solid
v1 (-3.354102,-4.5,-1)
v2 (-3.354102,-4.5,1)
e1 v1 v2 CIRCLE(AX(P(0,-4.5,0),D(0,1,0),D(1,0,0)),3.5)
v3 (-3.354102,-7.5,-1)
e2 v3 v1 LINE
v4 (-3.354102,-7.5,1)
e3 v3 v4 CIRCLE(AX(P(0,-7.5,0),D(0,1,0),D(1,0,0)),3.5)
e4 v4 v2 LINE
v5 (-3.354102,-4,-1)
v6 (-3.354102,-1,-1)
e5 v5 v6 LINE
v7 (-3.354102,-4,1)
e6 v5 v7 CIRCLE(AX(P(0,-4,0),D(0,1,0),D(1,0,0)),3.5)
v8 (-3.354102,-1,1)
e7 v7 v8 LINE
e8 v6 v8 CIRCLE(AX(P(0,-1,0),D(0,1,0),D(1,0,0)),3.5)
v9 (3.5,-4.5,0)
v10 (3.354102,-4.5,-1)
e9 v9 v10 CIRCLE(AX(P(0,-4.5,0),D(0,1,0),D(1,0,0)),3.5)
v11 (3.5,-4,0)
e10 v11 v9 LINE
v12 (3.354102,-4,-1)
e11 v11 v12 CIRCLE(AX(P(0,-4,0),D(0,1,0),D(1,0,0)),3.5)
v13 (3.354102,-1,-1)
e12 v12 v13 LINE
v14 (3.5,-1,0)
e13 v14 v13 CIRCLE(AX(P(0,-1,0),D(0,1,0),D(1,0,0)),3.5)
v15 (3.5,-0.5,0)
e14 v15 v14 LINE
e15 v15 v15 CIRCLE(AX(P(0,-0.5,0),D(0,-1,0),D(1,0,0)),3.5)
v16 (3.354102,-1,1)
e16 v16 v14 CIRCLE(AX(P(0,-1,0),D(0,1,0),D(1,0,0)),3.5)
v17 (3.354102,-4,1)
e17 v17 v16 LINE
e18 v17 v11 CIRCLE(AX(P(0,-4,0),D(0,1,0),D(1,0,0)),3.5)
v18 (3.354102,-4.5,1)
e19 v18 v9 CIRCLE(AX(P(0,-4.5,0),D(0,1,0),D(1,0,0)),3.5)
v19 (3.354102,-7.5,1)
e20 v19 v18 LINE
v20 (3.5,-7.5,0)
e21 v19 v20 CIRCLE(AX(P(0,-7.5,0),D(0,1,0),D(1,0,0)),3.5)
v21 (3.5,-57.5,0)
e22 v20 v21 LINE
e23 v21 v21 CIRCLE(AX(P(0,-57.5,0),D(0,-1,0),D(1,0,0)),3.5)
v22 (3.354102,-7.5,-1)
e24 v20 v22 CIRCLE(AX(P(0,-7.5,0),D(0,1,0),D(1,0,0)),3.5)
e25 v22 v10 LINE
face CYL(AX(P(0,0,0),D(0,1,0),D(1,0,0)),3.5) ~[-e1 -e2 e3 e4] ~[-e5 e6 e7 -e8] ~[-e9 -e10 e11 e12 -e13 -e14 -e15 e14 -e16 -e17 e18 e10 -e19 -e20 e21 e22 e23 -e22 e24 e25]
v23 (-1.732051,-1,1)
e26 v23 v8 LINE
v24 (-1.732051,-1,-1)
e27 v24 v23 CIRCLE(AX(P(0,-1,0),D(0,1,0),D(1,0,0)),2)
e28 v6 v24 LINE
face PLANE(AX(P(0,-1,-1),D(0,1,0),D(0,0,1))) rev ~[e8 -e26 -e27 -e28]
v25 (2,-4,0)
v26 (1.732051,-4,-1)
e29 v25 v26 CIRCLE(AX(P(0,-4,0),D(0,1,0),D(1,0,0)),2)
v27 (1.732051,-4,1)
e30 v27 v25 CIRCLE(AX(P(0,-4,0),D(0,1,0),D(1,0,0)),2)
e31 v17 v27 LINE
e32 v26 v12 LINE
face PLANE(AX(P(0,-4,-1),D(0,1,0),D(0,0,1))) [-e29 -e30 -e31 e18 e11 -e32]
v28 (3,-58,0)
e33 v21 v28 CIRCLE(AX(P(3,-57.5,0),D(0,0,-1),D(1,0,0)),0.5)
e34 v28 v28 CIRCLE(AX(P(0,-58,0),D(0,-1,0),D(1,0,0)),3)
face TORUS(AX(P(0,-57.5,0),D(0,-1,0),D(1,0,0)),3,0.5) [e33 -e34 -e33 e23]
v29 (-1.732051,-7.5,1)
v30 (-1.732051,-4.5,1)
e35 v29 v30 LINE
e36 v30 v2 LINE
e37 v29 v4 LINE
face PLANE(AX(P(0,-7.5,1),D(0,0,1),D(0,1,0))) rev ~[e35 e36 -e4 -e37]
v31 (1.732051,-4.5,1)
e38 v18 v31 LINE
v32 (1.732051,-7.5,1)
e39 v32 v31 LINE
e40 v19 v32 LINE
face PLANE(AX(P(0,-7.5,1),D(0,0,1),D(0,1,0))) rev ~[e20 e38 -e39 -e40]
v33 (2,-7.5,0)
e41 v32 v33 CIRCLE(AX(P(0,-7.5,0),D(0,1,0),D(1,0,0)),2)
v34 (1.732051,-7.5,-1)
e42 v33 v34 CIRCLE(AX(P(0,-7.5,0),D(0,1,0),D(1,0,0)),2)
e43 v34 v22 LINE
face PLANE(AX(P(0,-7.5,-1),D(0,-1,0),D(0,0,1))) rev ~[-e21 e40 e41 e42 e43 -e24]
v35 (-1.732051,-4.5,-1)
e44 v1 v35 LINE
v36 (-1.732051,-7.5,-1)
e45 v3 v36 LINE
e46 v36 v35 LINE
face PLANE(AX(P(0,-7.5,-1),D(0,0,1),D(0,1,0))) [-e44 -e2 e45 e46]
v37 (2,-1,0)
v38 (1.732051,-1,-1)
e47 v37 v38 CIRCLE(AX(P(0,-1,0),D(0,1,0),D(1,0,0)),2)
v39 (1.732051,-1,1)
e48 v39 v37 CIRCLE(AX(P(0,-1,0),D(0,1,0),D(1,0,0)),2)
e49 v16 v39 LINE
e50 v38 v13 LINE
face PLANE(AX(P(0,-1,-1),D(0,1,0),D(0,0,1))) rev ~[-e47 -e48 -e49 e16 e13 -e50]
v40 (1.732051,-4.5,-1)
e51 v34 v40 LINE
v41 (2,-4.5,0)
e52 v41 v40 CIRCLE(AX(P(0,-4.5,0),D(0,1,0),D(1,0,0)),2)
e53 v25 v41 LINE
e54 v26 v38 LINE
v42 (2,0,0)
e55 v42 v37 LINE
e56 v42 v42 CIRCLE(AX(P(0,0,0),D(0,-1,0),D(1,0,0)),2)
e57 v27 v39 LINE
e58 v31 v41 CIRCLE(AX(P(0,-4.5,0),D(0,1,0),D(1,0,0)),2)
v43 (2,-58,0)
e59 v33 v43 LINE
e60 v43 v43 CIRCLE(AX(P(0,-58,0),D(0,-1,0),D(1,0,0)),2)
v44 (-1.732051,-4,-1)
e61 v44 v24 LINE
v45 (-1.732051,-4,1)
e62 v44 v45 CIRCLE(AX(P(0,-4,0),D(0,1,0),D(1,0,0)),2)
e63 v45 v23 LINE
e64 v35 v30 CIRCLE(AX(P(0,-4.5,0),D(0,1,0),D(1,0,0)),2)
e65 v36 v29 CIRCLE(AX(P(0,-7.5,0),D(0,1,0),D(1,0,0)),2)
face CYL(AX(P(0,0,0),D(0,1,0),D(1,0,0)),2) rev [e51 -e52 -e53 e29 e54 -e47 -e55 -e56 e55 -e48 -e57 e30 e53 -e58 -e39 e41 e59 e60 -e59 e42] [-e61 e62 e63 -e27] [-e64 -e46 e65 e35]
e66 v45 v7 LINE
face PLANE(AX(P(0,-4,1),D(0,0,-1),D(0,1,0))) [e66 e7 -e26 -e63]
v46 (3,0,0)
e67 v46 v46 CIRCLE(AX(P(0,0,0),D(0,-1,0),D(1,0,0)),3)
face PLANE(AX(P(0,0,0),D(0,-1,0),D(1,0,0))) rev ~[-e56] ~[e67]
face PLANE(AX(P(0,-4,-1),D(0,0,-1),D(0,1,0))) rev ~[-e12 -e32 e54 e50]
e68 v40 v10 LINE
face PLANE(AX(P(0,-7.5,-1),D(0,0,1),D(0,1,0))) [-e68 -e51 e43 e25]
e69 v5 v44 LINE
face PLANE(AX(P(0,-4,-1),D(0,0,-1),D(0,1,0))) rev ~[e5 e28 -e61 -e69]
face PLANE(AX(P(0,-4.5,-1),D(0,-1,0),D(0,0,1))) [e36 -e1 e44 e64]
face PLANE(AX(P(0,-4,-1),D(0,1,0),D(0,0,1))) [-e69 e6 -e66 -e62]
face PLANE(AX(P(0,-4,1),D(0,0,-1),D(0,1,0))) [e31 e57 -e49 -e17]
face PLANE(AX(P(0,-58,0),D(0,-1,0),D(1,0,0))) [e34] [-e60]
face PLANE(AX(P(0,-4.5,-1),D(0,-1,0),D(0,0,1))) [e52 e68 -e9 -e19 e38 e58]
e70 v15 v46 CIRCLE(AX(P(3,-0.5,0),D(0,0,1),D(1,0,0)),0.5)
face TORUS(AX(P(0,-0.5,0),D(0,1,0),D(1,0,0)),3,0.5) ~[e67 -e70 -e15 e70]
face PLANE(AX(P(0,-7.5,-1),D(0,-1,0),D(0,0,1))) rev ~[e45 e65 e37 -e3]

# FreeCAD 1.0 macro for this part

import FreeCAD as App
import Part
import Sketcher
Q = App.Units.Quantity


def edges_at(feature, points):
    """Names of the edges that pass closest to the given points."""
    edges = feature.Shape.Edges
    near = lambda p: min(range(len(edges)), key=lambda i: edges[i].distToShape(Part.Vertex(*p))[0])
    return sorted({f"Edge{near(p) + 1}" for p in points})


def add_polygon(sketch, points):
    """Adds a closed chain of lines whose ends are joined by coincident constraints."""
    first, n = sketch.GeometryCount, len(points)
    for a, b in zip(points, points[1:] + points[:1]):
        sketch.addGeometry(Part.LineSegment(App.Vector(*a, 0), App.Vector(*b, 0)), False)
    for i in range(n):
        sketch.addConstraint(Sketcher.Constraint("Coincident", first + i, 2, first + (i + 1) % n, 1))

doc = App.newDocument("Part")
body = doc.addObject("PartDesign::Body", "Body")

sketch1 = body.newObject("Sketcher::SketchObject", "Sketch")
sketch1.AttachmentSupport = (doc.getObject("XZ_Plane"), [""])
sketch1.MapMode = "FlatFace"
sketch1.addGeometry(Part.Circle(App.Vector(0, 0, 0), App.Vector(0, 0, 1), 3.5), False)
sketch1.addGeometry(Part.Circle(App.Vector(0, 0, 0), App.Vector(0, 0, 1), 2), False)
sketch1.addConstraint(Sketcher.Constraint("Coincident", 0, 3, -1, 1))
sketch1.addConstraint(Sketcher.Constraint("Coincident", 1, 3, -1, 1))
sketch1.addConstraint(Sketcher.Constraint("Diameter", 0, Q("7 mm")))
sketch1.addConstraint(Sketcher.Constraint("Diameter", 1, Q("4 mm")))
pad1 = body.newObject("PartDesign::Pad", "Pad")
pad1.Profile = sketch1
pad1.Length = 58
doc.recompute()

fillet = body.newObject("PartDesign::Fillet", "Fillet")
fillet.Base = (pad1, edges_at(pad1, [(-3.5, -58, 0), (-3.5, 0, 0)]))
fillet.Radius = 0.5

sketch2 = body.newObject("Sketcher::SketchObject", "Sketch001")
sketch2.AttachmentSupport = (doc.getObject("YZ_Plane"), [""])
sketch2.MapMode = "FlatFace"
add_polygon(sketch2, [(-7.5, 1), (-7.5, -1), (-4.5, -1), (-4.5, 1)])
add_polygon(sketch2, [(-4, 1), (-4, -1), (-1, -1), (-1, 1)])
sketch2.addConstraint(Sketcher.Constraint("Vertical", 0))
sketch2.addConstraint(Sketcher.Constraint("Horizontal", 1))
sketch2.addConstraint(Sketcher.Constraint("Vertical", 2))
sketch2.addConstraint(Sketcher.Constraint("Horizontal", 3))
sketch2.addConstraint(Sketcher.Constraint("Vertical", 4))
sketch2.addConstraint(Sketcher.Constraint("Horizontal", 5))
sketch2.addConstraint(Sketcher.Constraint("Vertical", 6))
sketch2.addConstraint(Sketcher.Constraint("Horizontal", 7))
sketch2.addConstraint(Sketcher.Constraint("Horizontal", 1, 2, 4, 2))
sketch2.addConstraint(Sketcher.Constraint("Horizontal", 3, 2, 6, 2))
sketch2.addConstraint(Sketcher.Constraint("Equal", 3, 5))
sketch2.addConstraint(Sketcher.Constraint("DistanceX", 1, 1, 1, 2, Q("3 mm")))
sketch2.addConstraint(Sketcher.Constraint("DistanceY", 0, 2, 0, 1, Q("2 mm")))
sketch2.addConstraint(Sketcher.Constraint("DistanceY", 0, 2, -1, 1, Q("1 mm")))
sketch2.addConstraint(Sketcher.Constraint("DistanceX", 4, 2, -1, 1, Q("4 mm")))
sketch2.addConstraint(Sketcher.Constraint("DistanceX", 0, 2, -1, 1, Q("7.5 mm")))
pocket1 = body.newObject("PartDesign::Pocket", "Pocket")
pocket1.Profile = sketch2
pocket1.Length = 25
pocket1.Midplane = True

doc.recompute()
